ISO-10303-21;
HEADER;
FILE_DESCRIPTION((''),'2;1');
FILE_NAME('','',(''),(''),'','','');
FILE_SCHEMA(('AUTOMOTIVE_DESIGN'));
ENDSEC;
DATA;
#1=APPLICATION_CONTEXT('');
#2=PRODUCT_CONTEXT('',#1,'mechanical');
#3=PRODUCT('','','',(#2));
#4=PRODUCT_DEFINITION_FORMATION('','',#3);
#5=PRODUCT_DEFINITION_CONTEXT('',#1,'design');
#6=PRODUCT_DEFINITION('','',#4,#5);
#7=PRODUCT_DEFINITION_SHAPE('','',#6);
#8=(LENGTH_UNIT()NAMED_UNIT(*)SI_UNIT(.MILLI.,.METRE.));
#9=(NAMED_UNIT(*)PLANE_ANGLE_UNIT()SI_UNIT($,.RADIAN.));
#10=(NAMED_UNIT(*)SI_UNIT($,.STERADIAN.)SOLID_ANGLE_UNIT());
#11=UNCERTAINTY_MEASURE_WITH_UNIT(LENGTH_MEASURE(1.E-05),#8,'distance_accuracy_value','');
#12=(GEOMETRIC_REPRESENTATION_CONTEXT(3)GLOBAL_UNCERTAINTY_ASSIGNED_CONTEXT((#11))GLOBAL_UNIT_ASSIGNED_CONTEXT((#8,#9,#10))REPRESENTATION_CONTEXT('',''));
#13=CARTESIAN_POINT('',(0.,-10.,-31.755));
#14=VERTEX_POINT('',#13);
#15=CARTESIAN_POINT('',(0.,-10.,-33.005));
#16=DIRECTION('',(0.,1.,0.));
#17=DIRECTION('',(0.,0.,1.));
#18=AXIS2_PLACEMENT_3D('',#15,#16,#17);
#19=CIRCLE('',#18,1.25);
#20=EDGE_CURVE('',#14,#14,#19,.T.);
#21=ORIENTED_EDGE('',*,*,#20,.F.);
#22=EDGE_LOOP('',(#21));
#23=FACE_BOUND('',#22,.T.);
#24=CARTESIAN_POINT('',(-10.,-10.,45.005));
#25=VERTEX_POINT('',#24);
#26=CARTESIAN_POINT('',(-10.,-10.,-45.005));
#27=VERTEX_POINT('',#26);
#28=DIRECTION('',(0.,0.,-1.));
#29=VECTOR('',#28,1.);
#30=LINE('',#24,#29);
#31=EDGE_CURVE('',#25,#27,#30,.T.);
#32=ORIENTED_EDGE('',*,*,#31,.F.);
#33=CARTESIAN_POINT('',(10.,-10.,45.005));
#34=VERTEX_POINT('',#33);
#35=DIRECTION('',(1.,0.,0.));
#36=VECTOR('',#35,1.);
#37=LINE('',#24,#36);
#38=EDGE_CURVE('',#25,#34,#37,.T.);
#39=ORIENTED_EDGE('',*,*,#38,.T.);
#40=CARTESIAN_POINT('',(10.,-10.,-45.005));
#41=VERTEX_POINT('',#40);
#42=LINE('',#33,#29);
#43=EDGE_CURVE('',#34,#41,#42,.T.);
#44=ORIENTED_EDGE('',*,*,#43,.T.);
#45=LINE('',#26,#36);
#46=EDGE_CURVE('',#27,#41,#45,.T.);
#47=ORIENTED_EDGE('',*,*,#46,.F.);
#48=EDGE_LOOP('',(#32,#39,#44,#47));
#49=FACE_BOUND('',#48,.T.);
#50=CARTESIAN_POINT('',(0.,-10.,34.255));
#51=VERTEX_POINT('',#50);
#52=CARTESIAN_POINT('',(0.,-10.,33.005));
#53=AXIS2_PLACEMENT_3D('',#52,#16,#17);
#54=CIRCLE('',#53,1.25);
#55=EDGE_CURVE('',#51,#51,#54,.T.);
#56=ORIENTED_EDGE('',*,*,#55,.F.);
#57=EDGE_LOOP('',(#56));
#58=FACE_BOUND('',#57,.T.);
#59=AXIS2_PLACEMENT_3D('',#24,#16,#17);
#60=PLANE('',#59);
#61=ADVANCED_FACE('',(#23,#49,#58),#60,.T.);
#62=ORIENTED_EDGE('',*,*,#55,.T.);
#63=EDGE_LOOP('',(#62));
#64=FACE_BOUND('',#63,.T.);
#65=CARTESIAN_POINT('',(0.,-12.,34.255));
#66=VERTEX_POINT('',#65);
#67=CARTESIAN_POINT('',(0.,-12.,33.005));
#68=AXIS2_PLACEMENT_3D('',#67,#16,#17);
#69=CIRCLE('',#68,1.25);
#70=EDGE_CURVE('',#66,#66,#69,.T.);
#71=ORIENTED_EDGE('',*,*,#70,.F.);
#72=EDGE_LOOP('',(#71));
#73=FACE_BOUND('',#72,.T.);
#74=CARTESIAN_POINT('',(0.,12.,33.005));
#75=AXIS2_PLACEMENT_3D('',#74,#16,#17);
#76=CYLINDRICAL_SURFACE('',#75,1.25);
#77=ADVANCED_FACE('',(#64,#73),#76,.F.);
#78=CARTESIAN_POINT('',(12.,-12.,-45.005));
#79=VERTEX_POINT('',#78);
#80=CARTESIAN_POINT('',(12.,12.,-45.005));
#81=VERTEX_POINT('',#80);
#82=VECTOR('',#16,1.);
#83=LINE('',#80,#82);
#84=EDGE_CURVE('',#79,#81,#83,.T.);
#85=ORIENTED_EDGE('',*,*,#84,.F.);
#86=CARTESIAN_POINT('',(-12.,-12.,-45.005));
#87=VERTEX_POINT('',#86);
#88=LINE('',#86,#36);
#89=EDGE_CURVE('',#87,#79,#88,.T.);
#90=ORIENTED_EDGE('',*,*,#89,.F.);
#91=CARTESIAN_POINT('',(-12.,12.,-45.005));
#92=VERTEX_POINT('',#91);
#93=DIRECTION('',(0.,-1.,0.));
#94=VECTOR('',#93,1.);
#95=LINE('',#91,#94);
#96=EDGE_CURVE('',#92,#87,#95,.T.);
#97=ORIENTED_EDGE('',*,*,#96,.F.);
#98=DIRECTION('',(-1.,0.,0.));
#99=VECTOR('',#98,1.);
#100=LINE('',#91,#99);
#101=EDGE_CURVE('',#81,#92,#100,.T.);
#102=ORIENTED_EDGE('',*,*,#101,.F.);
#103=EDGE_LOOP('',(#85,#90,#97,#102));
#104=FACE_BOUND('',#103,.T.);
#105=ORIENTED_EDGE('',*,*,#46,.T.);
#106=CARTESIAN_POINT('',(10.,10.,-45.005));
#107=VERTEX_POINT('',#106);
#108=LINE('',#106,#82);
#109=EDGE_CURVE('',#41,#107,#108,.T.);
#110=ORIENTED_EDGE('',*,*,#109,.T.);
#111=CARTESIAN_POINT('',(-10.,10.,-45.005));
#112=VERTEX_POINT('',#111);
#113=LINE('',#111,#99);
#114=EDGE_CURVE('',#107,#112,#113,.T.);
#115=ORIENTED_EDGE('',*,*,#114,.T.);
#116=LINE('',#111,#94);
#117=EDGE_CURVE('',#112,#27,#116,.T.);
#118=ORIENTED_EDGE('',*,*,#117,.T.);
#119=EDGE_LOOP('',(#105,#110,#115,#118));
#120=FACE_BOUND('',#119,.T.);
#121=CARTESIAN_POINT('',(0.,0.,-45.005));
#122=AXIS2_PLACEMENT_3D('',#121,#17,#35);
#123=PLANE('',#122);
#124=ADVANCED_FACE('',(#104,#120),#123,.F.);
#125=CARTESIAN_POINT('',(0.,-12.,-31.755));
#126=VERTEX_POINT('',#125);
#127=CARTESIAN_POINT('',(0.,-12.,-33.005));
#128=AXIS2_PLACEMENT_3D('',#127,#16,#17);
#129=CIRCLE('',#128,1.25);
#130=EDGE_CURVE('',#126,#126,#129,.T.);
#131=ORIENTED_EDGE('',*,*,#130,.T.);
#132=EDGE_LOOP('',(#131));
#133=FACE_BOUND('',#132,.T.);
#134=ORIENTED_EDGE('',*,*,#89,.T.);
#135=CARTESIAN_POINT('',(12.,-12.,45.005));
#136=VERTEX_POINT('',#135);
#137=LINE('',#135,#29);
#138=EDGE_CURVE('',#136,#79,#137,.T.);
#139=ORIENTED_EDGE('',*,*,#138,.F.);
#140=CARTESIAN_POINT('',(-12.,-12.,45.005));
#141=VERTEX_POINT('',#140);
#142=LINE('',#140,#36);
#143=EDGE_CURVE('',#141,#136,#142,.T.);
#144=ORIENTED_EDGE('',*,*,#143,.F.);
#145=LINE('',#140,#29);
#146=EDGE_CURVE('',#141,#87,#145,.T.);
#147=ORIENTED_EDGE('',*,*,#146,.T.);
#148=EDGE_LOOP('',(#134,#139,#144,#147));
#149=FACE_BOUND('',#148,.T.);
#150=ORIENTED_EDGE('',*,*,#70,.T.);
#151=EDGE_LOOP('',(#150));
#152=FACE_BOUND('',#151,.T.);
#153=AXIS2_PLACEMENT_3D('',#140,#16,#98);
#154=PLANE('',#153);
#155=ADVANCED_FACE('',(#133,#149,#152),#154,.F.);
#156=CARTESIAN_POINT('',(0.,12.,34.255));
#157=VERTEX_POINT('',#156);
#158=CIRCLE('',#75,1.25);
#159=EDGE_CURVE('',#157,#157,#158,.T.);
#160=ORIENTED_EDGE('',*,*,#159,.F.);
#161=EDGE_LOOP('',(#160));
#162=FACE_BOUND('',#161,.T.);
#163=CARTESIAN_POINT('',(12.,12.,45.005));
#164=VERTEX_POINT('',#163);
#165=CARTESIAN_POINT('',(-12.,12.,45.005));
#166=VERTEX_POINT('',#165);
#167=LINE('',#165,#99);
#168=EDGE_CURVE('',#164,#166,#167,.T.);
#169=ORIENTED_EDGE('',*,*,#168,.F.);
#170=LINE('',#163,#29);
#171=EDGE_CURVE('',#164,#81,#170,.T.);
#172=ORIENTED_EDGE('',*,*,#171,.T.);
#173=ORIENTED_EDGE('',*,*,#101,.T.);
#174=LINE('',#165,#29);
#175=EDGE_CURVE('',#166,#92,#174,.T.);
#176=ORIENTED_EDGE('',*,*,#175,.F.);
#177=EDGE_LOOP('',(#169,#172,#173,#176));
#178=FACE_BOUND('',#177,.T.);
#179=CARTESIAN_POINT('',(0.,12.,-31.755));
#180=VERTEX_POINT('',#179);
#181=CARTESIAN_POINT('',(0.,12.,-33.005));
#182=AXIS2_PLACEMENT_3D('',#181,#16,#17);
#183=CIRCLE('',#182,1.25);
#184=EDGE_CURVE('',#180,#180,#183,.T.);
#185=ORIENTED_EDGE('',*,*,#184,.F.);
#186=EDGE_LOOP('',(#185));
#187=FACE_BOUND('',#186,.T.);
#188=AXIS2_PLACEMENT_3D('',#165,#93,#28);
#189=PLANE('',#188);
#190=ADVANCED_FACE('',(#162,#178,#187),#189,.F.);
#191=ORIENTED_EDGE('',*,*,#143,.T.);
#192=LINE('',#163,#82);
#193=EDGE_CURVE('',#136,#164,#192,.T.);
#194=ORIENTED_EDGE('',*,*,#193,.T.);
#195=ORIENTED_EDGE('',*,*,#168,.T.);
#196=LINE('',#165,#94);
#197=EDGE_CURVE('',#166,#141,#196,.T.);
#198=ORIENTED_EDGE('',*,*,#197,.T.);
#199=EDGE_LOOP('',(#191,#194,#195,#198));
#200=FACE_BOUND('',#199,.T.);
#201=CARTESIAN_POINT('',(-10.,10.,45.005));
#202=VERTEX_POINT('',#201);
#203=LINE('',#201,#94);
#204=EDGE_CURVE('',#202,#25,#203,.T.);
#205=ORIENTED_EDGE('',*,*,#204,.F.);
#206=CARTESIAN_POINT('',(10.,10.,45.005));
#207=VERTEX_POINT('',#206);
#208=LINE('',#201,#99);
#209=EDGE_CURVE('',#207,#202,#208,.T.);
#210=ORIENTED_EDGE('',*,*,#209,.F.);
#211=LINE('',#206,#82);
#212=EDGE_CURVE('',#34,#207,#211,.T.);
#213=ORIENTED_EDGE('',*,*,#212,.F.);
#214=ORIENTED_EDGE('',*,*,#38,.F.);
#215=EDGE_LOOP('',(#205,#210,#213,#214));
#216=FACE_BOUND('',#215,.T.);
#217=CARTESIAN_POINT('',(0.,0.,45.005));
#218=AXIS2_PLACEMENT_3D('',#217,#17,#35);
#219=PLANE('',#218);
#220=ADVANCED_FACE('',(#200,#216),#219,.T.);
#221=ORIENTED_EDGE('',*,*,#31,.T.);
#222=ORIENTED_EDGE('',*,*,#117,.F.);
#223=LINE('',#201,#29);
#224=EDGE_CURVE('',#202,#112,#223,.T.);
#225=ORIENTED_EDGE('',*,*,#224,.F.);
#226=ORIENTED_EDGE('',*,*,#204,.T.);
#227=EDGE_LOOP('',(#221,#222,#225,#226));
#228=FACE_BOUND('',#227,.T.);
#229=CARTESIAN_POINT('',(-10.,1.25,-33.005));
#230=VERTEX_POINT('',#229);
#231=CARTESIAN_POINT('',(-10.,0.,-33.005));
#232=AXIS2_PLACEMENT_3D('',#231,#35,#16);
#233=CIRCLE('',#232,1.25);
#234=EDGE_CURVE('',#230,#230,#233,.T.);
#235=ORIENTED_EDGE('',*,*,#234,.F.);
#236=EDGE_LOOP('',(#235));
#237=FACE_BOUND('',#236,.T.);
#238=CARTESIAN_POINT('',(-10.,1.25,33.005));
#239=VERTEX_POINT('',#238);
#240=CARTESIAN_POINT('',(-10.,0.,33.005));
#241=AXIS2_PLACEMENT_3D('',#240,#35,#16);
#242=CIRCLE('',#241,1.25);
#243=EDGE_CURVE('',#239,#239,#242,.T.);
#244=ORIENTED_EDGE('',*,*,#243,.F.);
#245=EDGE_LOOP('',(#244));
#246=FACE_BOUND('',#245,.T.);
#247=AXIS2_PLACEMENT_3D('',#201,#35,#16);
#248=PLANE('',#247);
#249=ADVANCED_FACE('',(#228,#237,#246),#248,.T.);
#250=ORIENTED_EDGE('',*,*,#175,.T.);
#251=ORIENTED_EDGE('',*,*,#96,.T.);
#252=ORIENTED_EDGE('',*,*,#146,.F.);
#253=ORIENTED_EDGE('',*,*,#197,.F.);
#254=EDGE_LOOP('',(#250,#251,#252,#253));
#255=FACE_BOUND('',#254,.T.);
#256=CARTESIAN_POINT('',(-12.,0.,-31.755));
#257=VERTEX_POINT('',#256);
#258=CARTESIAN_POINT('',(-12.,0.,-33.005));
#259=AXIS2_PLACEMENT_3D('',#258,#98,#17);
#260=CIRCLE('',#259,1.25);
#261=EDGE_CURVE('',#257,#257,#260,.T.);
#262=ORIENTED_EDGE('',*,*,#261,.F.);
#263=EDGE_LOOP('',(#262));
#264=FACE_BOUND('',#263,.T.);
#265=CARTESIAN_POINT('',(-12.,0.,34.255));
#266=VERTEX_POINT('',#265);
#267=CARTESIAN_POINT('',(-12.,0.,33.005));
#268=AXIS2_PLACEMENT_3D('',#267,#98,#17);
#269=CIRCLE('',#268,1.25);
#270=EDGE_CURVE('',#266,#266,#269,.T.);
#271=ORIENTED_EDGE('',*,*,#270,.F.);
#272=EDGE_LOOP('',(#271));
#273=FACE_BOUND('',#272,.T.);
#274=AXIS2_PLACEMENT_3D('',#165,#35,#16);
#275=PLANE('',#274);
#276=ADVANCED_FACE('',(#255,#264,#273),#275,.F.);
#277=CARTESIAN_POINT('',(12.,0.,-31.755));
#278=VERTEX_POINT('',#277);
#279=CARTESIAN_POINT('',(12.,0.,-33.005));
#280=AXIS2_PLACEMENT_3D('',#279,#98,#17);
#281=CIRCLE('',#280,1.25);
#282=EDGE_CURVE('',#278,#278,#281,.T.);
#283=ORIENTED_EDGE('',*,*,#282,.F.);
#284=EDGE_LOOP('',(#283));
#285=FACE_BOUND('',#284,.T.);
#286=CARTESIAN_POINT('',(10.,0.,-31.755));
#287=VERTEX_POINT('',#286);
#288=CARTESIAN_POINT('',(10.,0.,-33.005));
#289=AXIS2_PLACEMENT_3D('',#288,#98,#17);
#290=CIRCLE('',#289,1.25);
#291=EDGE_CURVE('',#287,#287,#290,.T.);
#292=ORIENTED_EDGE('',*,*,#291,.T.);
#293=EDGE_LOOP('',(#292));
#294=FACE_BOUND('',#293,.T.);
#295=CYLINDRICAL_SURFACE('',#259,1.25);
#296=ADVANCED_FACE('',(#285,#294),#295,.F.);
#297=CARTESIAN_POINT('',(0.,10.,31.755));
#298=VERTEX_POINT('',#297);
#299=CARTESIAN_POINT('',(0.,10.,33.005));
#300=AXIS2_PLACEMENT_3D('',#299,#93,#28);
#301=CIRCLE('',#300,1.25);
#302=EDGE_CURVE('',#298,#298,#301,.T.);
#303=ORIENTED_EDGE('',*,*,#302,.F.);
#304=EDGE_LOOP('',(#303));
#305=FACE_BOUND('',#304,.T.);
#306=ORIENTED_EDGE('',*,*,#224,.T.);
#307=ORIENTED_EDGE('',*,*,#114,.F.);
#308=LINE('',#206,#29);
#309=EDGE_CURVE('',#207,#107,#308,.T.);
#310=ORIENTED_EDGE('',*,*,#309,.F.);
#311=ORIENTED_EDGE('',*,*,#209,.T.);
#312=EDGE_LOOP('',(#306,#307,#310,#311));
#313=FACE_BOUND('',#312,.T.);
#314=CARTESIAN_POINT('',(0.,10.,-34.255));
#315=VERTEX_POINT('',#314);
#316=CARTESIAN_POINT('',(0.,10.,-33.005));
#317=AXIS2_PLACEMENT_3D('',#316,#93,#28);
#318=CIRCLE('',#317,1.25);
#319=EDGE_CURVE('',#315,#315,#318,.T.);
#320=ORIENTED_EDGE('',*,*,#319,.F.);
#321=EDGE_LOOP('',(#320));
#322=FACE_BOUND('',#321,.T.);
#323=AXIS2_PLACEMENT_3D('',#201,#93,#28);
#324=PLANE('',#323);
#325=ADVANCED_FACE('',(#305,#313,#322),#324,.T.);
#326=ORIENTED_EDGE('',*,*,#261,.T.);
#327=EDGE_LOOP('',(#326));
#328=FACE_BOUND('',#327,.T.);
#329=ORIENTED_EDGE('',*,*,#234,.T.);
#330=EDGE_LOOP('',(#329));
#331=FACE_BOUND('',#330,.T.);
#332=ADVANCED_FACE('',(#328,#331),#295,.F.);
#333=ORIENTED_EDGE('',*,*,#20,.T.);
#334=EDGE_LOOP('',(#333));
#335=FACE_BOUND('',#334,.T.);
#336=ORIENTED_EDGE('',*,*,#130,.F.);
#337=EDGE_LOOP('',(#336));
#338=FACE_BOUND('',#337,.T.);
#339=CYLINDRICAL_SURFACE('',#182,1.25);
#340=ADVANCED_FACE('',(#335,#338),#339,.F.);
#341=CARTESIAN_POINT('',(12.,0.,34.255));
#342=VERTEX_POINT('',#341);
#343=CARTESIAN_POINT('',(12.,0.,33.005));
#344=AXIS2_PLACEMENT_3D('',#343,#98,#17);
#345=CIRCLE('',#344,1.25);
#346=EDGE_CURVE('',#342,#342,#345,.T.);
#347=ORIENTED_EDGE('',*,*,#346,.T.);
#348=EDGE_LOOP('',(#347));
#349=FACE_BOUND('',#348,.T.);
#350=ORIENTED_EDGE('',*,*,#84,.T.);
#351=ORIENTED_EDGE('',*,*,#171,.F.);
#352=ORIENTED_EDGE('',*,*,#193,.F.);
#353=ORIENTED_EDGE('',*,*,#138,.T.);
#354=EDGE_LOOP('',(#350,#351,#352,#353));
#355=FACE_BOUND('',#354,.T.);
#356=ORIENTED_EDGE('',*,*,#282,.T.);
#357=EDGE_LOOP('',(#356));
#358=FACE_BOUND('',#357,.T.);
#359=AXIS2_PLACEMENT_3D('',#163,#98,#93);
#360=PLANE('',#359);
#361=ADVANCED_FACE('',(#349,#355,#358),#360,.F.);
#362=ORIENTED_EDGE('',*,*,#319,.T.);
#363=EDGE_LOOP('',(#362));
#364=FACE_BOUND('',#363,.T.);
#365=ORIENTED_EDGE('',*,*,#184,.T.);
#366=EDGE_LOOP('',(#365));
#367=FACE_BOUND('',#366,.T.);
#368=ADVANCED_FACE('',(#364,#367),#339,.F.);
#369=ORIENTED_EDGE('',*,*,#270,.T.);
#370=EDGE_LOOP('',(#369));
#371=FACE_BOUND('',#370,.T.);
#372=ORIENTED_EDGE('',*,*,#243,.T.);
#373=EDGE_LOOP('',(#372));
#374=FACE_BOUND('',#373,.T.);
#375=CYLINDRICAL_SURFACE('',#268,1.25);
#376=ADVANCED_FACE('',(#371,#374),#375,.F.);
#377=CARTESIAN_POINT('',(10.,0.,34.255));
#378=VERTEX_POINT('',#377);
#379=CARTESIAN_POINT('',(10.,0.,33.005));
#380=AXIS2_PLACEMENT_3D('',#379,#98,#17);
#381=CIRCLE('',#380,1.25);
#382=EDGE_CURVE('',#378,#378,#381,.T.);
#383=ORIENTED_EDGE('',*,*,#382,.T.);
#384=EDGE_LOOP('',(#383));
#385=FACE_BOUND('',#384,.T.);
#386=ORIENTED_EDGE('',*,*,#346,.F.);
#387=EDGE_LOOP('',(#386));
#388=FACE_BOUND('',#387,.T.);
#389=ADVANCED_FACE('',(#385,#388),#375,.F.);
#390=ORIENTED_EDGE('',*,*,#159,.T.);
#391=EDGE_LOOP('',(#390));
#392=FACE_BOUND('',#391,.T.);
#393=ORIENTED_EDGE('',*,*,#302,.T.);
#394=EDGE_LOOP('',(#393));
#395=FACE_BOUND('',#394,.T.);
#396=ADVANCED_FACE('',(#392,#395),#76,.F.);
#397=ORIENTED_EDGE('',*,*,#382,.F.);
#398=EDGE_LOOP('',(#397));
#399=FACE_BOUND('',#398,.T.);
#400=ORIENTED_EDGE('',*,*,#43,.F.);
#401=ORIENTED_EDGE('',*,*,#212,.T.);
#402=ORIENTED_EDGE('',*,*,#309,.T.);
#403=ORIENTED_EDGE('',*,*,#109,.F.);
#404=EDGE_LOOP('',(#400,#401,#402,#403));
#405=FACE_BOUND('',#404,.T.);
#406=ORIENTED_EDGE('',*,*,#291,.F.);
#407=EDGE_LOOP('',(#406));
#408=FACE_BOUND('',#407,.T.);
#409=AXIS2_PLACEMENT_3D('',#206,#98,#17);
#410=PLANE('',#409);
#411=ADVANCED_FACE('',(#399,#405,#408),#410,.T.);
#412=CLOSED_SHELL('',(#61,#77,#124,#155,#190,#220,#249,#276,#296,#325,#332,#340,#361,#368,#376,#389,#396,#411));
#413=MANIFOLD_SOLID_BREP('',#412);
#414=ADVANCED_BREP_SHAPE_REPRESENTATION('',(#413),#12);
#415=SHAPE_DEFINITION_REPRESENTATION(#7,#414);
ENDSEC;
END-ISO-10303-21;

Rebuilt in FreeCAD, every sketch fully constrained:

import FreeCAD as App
import Part
import Sketcher

V = App.Vector
Q = App.Units.Quantity

doc = App.newDocument("Part")
body = doc.addObject("PartDesign::Body", "Body")

# Sketch on XY plane
sketch1 = body.newObject("Sketcher::SketchObject", "Sketch")
sketch1.AttachmentSupport = (doc.getObject("XY_Plane"), [""])
sketch1.MapMode = "FlatFace"
sketch1.addGeometry([
    Part.LineSegment(V(-12, 12, 0), V(-12, -12, 0)),  # 0
    Part.LineSegment(V(-12, -12, 0), V(12, -12, 0)),  # 1
    Part.LineSegment(V(12, -12, 0), V(12, 12, 0)),  # 2
    Part.LineSegment(V(12, 12, 0), V(-12, 12, 0)),  # 3
    Part.LineSegment(V(10, -10, 0), V(-10, -10, 0)),  # 4
    Part.LineSegment(V(-10, -10, 0), V(-10, 10, 0)),  # 5
    Part.LineSegment(V(-10, 10, 0), V(10, 10, 0)),  # 6
    Part.LineSegment(V(10, 10, 0), V(10, -10, 0)),  # 7
], False)
sketch1.addConstraint([
    Sketcher.Constraint("Coincident", 0, 2, 1, 1),
    Sketcher.Constraint("Coincident", 1, 2, 2, 1),
    Sketcher.Constraint("Coincident", 2, 2, 3, 1),
    Sketcher.Constraint("Coincident", 3, 2, 0, 1),
    Sketcher.Constraint("Coincident", 4, 2, 5, 1),
    Sketcher.Constraint("Coincident", 5, 2, 6, 1),
    Sketcher.Constraint("Coincident", 6, 2, 7, 1),
    Sketcher.Constraint("Coincident", 7, 2, 4, 1),
    Sketcher.Constraint("Vertical", 0),
    Sketcher.Constraint("Horizontal", 1),
    Sketcher.Constraint("Vertical", 2),
    Sketcher.Constraint("Horizontal", 3),
    Sketcher.Constraint("Horizontal", 4),
    Sketcher.Constraint("Vertical", 5),
    Sketcher.Constraint("Horizontal", 6),
    Sketcher.Constraint("Vertical", 7),
    Sketcher.Constraint("Symmetric", 0, 2, 2, 2, -1, 1),
    Sketcher.Constraint("Symmetric", 4, 2, 6, 2, -1, 1),
    Sketcher.Constraint("Equal", 3, 0),
    Sketcher.Constraint("Equal", 6, 5),
    Sketcher.Constraint("DistanceX", 1, 1, 1, 2, Q("24 mm")),
    Sketcher.Constraint("DistanceX", 4, 2, 4, 1, Q("20 mm")),
])
pad1 = body.newObject("PartDesign::Pad", "Pad")
pad1.Profile = sketch1
pad1.Length = 90.01
pad1.Midplane = True

# Sketch on YZ plane
sketch2 = body.newObject("Sketcher::SketchObject", "Sketch001")
sketch2.AttachmentSupport = (doc.getObject("YZ_Plane"), [""])
sketch2.MapMode = "FlatFace"
sketch2.AttachmentOffset = App.Placement(V(0, 0, -12), App.Rotation())
sketch2.addGeometry(Part.Circle(V(0, -33, 0), V(0, 0, 1), 1.2), False)
sketch2.addConstraint([
    Sketcher.Constraint("PointOnObject", 0, 3, -2),
    Sketcher.Constraint("Diameter", 0, Q("2.5 mm")),
    Sketcher.Constraint("DistanceY", 0, 3, -1, 1, Q("33.005 mm")),
])
doc.recompute()
hole = body.newObject("PartDesign::Hole", "Hole")
hole.Profile = sketch2
hole.ThreadType = "None"
hole.Diameter = 2.5
hole.DepthType = "ThroughAll"
hole.Reversed = True
doc.recompute()

mirrored = body.newObject("PartDesign::Mirrored", "Mirrored")
mirrored.Originals = [hole]
mirrored.MirrorPlane = (doc.getObject("XY_Plane"), [""])
body.Tip = mirrored

# Sketch on XZ plane
sketch3 = body.newObject("Sketcher::SketchObject", "Sketch002")
sketch3.AttachmentSupport = (doc.getObject("XZ_Plane"), [""])
sketch3.MapMode = "FlatFace"
sketch3.AttachmentOffset = App.Placement(V(0, 0, -12), App.Rotation())
sketch3.addGeometry(Part.Circle(V(0, -33, 0), V(0, 0, 1), 1.2), False)
sketch3.addConstraint([
    Sketcher.Constraint("PointOnObject", 0, 3, -2),
    Sketcher.Constraint("Diameter", 0, Q("2.5 mm")),
    Sketcher.Constraint("DistanceY", 0, 3, -1, 1, Q("33.005 mm")),
])
doc.recompute()
hole2 = body.newObject("PartDesign::Hole", "Hole001")
hole2.Profile = sketch3
hole2.ThreadType = "None"
hole2.Diameter = 2.5
hole2.DepthType = "ThroughAll"
hole2.Reversed = True
doc.recompute()

mirrored2 = body.newObject("PartDesign::Mirrored", "Mirrored001")
mirrored2.Originals = [hole2]
mirrored2.MirrorPlane = (doc.getObject("XY_Plane"), [""])
body.Tip = mirrored2

doc.recompute()
